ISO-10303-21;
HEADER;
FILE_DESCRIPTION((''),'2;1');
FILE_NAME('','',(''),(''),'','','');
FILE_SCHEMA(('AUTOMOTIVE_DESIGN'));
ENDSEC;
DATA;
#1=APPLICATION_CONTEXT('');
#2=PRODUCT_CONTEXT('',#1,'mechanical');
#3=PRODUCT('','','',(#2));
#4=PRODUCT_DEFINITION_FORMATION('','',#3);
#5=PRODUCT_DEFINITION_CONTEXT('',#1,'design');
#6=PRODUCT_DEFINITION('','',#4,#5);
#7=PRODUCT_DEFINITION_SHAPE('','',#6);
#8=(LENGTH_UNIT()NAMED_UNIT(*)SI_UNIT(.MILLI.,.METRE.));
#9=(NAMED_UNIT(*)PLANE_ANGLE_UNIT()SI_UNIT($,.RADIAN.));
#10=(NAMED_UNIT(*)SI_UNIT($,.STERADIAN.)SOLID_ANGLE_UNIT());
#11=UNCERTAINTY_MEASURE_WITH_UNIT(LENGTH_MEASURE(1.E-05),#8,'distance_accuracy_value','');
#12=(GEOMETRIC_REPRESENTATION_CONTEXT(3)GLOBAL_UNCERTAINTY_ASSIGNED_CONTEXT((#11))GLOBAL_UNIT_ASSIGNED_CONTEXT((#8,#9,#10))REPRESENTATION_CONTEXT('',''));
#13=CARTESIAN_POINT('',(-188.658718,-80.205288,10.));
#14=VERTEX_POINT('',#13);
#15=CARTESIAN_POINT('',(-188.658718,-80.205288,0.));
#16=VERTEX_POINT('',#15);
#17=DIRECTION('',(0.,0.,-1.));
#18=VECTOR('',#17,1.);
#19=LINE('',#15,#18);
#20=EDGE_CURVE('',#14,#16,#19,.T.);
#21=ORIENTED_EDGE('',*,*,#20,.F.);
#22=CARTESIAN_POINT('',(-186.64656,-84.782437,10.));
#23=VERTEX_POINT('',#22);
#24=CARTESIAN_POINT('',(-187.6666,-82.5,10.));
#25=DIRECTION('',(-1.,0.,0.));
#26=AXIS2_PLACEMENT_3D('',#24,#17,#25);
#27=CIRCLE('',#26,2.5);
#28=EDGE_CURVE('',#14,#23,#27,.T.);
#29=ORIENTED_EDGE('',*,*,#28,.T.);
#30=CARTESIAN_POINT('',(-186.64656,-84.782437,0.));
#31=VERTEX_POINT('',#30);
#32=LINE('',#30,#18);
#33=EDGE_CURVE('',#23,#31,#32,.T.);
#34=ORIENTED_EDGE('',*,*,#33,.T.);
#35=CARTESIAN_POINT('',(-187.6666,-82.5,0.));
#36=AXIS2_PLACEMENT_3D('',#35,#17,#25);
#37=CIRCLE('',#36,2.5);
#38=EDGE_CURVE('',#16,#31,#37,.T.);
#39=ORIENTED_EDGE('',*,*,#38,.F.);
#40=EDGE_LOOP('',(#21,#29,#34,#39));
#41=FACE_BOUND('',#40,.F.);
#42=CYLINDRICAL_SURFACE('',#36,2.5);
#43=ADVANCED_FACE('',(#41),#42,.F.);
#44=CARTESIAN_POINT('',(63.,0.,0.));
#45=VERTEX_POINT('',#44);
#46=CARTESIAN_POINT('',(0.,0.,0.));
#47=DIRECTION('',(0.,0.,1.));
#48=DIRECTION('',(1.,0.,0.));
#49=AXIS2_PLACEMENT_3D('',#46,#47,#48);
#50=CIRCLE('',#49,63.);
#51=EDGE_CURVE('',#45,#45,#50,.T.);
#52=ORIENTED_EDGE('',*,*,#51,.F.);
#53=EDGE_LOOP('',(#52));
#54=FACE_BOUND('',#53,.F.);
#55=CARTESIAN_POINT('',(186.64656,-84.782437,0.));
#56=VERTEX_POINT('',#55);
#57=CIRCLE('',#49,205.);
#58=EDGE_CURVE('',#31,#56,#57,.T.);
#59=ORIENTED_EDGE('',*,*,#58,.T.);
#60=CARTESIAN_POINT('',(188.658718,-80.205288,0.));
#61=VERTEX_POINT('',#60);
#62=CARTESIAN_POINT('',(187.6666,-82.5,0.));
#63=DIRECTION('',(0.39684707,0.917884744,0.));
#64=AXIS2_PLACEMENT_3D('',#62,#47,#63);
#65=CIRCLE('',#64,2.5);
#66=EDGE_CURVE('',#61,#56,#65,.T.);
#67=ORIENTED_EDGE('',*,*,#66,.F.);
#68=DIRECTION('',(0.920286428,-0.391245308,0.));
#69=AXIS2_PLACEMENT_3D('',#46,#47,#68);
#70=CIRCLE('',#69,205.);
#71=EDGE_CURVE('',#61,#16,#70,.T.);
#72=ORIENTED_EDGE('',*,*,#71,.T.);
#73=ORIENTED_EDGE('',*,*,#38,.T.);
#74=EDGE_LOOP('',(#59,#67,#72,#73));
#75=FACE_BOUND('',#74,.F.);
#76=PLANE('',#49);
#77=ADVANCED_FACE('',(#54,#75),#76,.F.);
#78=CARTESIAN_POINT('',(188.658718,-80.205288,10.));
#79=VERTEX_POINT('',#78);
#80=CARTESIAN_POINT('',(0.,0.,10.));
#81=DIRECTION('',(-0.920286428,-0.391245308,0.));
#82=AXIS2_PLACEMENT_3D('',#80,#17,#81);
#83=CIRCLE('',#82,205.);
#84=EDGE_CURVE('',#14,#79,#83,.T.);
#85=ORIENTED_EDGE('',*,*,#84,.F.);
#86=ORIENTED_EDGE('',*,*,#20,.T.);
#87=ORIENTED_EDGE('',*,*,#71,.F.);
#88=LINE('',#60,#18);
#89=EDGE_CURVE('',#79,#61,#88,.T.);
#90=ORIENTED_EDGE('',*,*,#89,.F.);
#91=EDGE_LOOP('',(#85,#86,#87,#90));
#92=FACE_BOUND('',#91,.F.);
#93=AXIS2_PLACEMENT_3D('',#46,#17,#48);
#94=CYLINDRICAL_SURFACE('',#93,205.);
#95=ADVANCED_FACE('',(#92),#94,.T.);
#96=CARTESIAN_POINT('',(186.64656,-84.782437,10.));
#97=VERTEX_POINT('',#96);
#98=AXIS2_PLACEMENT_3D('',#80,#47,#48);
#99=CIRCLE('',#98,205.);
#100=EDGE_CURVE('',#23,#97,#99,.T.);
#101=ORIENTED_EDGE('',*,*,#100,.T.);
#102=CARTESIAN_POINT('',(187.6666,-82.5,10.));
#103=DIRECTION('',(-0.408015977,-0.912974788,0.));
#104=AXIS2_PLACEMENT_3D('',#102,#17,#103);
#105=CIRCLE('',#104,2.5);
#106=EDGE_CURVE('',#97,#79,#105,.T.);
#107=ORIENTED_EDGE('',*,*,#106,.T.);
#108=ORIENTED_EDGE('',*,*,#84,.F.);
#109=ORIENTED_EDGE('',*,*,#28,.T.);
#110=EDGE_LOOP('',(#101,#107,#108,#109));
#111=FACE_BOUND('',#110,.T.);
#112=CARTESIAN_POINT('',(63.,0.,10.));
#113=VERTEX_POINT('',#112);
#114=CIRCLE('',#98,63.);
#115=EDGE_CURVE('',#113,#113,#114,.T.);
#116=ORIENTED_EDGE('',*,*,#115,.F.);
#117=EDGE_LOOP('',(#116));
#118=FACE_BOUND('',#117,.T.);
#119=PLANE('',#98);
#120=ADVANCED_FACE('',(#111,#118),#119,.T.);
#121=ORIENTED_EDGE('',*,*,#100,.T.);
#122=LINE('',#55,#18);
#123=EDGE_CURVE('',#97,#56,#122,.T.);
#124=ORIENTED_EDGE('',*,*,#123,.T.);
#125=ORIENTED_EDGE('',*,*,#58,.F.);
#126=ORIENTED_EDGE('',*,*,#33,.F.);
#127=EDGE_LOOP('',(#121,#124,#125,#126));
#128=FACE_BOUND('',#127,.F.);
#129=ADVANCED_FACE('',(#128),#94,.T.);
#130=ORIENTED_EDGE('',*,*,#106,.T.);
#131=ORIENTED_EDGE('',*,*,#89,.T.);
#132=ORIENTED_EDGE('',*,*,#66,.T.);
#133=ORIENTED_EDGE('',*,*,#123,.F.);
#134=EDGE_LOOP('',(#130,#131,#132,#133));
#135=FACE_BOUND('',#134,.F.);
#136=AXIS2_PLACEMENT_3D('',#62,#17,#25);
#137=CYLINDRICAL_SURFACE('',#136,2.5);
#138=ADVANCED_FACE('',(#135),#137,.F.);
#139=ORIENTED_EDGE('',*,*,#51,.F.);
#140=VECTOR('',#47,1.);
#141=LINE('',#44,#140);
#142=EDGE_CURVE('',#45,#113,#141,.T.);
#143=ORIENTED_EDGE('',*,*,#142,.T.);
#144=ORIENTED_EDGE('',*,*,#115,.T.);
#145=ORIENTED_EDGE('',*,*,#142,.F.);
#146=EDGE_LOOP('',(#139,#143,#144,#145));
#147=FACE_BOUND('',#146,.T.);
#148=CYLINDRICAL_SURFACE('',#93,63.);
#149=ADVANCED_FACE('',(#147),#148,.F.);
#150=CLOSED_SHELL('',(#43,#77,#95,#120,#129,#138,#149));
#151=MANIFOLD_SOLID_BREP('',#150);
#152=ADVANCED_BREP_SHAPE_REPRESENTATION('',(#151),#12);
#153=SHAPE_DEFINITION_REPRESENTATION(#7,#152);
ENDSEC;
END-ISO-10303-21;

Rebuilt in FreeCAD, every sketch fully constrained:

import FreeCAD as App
import Part
import Sketcher

V = App.Vector

doc = App.newDocument("Part")
body = doc.addObject("PartDesign::Body", "Body")

sketch1 = doc.addObject("Sketcher::SketchObject", "Sketch")
body.addObject(sketch1)
sketch1.AttachmentSupport = (doc.XY_Plane, [""])
sketch1.MapMode = "FlatFace"
sketch1.addGeometry(Part.Circle(V(0, 0, 0), V(0, 0, 1), 205), False)
sketch1.addGeometry(Part.Circle(V(0, 0, 0), V(0, 0, 1), 63), False)
sketch1.addConstraint(Sketcher.Constraint("Coincident", 0, 3, -1, 1))
sketch1.addConstraint(Sketcher.Constraint("Coincident", 1, 3, -1, 1))
sketch1.addConstraint(Sketcher.Constraint("Diameter", 1, 126.0))
sketch1.addConstraint(Sketcher.Constraint("Diameter", 0, 410.0))
pad1 = doc.addObject("PartDesign::Pad", "Pad")
body.addObject(pad1)
pad1.Profile = sketch1
pad1.Length = 10

sketch2 = doc.addObject("Sketcher::SketchObject", "Sketch001")
body.addObject(sketch2)
sketch2.AttachmentSupport = (doc.XY_Plane, [""])
sketch2.MapMode = "FlatFace"
sketch2.addGeometry(Part.Circle(V(187.6666, -82.5, 0), V(0, 0, 1), 2.5), False)
sketch2.addGeometry(Part.Circle(V(-187.6666, -82.5, 0), V(0, 0, 1), 2.5), False)
sketch2.addConstraint(Sketcher.Constraint("Equal", 0, 1))
sketch2.addConstraint(Sketcher.Constraint("Symmetric", 0, 3, 1, 3, -2))
sketch2.addConstraint(Sketcher.Constraint("Diameter", 0, 5.0))
sketch2.addConstraint(Sketcher.Constraint("DistanceY", 0, 3, -1, 1, 82.5))
sketch2.addConstraint(Sketcher.Constraint("DistanceX", -1, 1, 0, 3, 187.6666))
pocket1 = doc.addObject("PartDesign::Pocket", "Pocket")
body.addObject(pocket1)
pocket1.Profile = sketch2
pocket1.Type = "ThroughAll"
pocket1.Reversed = True

doc.recompute()
